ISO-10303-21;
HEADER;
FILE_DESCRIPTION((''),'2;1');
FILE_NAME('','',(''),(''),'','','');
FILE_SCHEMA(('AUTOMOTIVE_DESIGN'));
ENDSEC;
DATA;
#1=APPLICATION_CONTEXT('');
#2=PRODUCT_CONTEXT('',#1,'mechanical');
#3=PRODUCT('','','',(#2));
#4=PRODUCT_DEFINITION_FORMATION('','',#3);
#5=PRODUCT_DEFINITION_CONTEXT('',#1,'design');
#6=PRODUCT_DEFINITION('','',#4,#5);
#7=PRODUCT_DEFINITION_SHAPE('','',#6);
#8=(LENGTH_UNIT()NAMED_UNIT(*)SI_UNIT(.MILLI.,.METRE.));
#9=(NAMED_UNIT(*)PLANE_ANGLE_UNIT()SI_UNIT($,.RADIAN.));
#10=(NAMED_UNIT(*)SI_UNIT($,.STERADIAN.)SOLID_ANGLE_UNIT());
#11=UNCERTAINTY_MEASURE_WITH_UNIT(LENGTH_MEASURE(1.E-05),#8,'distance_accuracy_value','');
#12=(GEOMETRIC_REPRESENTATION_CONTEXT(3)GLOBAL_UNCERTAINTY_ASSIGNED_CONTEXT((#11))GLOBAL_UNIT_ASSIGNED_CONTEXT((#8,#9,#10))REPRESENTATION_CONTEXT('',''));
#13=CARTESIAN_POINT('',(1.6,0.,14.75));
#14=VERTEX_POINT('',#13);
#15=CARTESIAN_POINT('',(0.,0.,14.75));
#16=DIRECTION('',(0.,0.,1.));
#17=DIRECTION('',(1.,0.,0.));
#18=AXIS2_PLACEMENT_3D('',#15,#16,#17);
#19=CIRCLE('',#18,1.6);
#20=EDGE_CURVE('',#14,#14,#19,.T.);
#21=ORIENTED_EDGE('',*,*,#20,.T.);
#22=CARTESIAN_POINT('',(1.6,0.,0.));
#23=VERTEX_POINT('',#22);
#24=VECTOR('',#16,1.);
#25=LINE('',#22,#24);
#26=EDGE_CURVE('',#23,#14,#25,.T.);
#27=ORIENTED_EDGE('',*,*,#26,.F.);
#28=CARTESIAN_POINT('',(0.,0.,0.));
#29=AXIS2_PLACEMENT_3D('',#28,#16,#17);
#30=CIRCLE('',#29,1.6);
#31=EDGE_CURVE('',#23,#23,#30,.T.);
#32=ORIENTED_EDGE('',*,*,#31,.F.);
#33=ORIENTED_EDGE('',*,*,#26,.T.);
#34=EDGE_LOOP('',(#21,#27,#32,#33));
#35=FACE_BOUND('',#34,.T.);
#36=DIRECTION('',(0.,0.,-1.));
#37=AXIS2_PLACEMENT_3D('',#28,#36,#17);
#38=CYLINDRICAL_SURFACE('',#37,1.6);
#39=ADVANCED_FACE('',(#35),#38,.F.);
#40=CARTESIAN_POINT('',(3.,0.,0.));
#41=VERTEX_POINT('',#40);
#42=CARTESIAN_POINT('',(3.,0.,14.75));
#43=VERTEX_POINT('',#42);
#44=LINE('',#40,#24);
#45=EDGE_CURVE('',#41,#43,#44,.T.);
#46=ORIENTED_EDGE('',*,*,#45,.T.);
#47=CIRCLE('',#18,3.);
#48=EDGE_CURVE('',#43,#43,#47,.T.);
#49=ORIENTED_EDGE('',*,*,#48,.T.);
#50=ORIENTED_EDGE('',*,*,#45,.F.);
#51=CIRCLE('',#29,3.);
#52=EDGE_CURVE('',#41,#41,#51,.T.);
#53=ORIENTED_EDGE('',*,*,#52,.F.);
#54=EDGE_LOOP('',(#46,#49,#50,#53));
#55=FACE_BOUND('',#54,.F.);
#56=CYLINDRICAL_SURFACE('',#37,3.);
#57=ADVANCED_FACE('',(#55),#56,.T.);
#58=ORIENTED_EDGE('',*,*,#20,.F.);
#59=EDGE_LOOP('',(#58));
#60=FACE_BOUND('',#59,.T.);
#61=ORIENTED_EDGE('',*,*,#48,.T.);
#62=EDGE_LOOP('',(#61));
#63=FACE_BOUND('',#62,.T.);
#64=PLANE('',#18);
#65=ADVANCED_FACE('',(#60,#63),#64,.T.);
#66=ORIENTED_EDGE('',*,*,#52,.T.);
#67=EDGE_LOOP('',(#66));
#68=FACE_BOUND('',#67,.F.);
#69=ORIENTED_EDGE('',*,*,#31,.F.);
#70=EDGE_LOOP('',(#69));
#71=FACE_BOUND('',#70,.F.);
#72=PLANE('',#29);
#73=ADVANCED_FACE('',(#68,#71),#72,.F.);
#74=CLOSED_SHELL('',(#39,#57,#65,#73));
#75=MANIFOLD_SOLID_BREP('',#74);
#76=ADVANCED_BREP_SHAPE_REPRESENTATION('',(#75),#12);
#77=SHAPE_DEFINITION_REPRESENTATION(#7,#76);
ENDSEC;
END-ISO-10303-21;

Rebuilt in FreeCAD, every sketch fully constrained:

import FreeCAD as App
import Part
import Sketcher
Q = App.Units.Quantity

doc = App.newDocument("Part")
body = doc.addObject("PartDesign::Body", "Body")

# Sketch on XY plane
sketch1 = body.newObject("Sketcher::SketchObject", "Sketch")
sketch1.AttachmentSupport = (doc.getObject("XY_Plane"), [""])
sketch1.MapMode = "FlatFace"
sketch1.addGeometry([
    Part.Circle(App.Vector(0, 0, 0), App.Vector(0, 0, 1), 3),
    Part.Circle(App.Vector(0, 0, 0), App.Vector(0, 0, 1), 1.6),
], False)
sketch1.addConstraint([
    Sketcher.Constraint("Coincident", 0, 3, -1, 1),
    Sketcher.Constraint("Coincident", 1, 3, -1, 1),
    Sketcher.Constraint("Diameter", 0, Q("6 mm")),
    Sketcher.Constraint("Diameter", 1, Q("3.2 mm")),
])
pad1 = body.newObject("PartDesign::Pad", "Pad")
pad1.Profile = sketch1
pad1.Length = 14.75

doc.recompute()
